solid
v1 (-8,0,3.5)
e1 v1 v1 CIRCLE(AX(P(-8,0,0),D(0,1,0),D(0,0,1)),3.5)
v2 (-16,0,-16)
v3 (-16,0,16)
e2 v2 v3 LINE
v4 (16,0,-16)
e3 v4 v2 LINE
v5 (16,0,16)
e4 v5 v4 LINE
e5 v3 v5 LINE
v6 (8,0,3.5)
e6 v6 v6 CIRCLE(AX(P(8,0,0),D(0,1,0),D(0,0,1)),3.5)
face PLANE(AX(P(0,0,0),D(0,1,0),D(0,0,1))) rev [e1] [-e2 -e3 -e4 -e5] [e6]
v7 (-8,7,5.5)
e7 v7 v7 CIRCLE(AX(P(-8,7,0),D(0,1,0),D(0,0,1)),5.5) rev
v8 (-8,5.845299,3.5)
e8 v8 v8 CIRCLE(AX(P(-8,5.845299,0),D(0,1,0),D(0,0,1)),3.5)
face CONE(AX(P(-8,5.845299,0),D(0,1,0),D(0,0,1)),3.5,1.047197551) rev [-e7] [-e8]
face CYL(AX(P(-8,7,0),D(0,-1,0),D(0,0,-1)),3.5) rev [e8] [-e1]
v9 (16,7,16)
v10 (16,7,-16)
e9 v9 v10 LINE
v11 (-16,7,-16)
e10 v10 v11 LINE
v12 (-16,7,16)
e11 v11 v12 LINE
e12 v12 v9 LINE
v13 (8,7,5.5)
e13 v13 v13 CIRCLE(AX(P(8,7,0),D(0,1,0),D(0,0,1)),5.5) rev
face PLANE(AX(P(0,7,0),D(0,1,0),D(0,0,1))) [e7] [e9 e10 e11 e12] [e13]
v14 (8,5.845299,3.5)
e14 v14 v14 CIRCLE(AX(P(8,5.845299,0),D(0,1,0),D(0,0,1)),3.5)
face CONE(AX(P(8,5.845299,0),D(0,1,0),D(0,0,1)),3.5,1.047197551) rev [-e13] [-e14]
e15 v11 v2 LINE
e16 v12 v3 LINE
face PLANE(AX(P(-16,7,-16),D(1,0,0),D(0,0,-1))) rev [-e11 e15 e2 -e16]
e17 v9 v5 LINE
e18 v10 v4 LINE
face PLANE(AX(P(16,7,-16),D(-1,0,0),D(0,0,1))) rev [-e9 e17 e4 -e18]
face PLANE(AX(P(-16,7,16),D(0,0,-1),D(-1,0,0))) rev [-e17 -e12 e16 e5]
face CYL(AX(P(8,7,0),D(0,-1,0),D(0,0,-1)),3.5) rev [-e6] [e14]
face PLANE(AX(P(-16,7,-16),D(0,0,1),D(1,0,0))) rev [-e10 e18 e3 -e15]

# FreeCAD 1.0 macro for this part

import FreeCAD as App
import Part
import Sketcher
Q = App.Units.Quantity


def edges_at(feature, points):
    """Names of the edges that pass closest to the given points."""
    edges = feature.Shape.Edges
    near = lambda p: min(range(len(edges)), key=lambda i: edges[i].distToShape(Part.Vertex(*p))[0])
    return sorted({f"Edge{near(p) + 1}" for p in points})

doc = App.newDocument("Part")
params = doc.addObject("Spreadsheet::Sheet", "Params")
for row, (alias, value) in enumerate([
    ("sketch1_diameter", "7 mm"),
    ("sketch1_width", "32 mm"),
    ("pad1_length", "7 mm"),
    ("chamfer_size", "2 mm"),
    ("chamfer_size2", "1.154701 mm"),
], start=1):
    params.set(f"A{row}", alias)
    params.set(f"B{row}", "=" + value)
    params.setAlias(f"B{row}", alias)

body = doc.addObject("PartDesign::Body", "Body")

# Sketch on XZ plane
sketch1 = doc.addObject("Sketcher::SketchObject", "Sketch")
body.addObject(sketch1)
sketch1.AttachmentSupport = (doc.XZ_Plane, [""])
sketch1.MapMode = "FlatFace"
sketch1.addGeometry([
    Part.LineSegment(App.Vector(-16, -16, 0), App.Vector(-16, 16, 0)),  # 0
    Part.LineSegment(App.Vector(-16, 16, 0), App.Vector(16, 16, 0)),  # 1
    Part.LineSegment(App.Vector(16, 16, 0), App.Vector(16, -16, 0)),  # 2
    Part.LineSegment(App.Vector(16, -16, 0), App.Vector(-16, -16, 0)),  # 3
    Part.Circle(App.Vector(-8, 0, 0), App.Vector(0, 0, 1), 3.5),  # 4
    Part.Circle(App.Vector(8, 0, 0), App.Vector(0, 0, 1), 3.5),  # 5
], False)
sketch1.addConstraint([
    Sketcher.Constraint("Coincident", 0, 2, 1, 1),
    Sketcher.Constraint("Coincident", 1, 2, 2, 1),
    Sketcher.Constraint("Coincident", 2, 2, 3, 1),
    Sketcher.Constraint("Coincident", 3, 2, 0, 1),
    Sketcher.Constraint("Vertical", 0),
    Sketcher.Constraint("Horizontal", 1),
    Sketcher.Constraint("Vertical", 2),
    Sketcher.Constraint("Horizontal", 3),
    Sketcher.Constraint("Equal", 4, 5),
    Sketcher.Constraint("Symmetric", 4, 3, 5, 3, -1, 1),
    Sketcher.Constraint("Symmetric", 0, 2, 2, 2, -1, 1),
    Sketcher.Constraint("PointOnObject", 4, 3, -1),
    Sketcher.Constraint("Equal", 3, 0),
    Sketcher.Constraint("Diameter", 4, Q("7 mm")),
    Sketcher.Constraint("DistanceX", 1, 1, 1, 2, Q("32 mm")),
    Sketcher.Constraint("DistanceX", 4, 3, -1, 1, Q("8 mm")),
])
sketch1.setExpression("Constraints[13]", "Params.sketch1_diameter")
sketch1.setExpression("Constraints[14]", "Params.sketch1_width")
pad1 = doc.addObject("PartDesign::Pad", "Pad")
body.addObject(pad1)
pad1.Profile = sketch1
pad1.setExpression("Length", "Params.pad1_length")
pad1.Reversed = True
doc.recompute()

chamfer = doc.addObject("PartDesign::Chamfer", "Chamfer")
body.addObject(chamfer)
chamfer.Base = (pad1, edges_at(pad1, [(-8, 7, -3.5), (8, 7, -3.5)]))
chamfer.ChamferType = "Two distances"
chamfer.setExpression("Size", "Params.chamfer_size")
chamfer.setExpression("Size2", "Params.chamfer_size2")
chamfer.FlipDirection = True

doc.recompute()
